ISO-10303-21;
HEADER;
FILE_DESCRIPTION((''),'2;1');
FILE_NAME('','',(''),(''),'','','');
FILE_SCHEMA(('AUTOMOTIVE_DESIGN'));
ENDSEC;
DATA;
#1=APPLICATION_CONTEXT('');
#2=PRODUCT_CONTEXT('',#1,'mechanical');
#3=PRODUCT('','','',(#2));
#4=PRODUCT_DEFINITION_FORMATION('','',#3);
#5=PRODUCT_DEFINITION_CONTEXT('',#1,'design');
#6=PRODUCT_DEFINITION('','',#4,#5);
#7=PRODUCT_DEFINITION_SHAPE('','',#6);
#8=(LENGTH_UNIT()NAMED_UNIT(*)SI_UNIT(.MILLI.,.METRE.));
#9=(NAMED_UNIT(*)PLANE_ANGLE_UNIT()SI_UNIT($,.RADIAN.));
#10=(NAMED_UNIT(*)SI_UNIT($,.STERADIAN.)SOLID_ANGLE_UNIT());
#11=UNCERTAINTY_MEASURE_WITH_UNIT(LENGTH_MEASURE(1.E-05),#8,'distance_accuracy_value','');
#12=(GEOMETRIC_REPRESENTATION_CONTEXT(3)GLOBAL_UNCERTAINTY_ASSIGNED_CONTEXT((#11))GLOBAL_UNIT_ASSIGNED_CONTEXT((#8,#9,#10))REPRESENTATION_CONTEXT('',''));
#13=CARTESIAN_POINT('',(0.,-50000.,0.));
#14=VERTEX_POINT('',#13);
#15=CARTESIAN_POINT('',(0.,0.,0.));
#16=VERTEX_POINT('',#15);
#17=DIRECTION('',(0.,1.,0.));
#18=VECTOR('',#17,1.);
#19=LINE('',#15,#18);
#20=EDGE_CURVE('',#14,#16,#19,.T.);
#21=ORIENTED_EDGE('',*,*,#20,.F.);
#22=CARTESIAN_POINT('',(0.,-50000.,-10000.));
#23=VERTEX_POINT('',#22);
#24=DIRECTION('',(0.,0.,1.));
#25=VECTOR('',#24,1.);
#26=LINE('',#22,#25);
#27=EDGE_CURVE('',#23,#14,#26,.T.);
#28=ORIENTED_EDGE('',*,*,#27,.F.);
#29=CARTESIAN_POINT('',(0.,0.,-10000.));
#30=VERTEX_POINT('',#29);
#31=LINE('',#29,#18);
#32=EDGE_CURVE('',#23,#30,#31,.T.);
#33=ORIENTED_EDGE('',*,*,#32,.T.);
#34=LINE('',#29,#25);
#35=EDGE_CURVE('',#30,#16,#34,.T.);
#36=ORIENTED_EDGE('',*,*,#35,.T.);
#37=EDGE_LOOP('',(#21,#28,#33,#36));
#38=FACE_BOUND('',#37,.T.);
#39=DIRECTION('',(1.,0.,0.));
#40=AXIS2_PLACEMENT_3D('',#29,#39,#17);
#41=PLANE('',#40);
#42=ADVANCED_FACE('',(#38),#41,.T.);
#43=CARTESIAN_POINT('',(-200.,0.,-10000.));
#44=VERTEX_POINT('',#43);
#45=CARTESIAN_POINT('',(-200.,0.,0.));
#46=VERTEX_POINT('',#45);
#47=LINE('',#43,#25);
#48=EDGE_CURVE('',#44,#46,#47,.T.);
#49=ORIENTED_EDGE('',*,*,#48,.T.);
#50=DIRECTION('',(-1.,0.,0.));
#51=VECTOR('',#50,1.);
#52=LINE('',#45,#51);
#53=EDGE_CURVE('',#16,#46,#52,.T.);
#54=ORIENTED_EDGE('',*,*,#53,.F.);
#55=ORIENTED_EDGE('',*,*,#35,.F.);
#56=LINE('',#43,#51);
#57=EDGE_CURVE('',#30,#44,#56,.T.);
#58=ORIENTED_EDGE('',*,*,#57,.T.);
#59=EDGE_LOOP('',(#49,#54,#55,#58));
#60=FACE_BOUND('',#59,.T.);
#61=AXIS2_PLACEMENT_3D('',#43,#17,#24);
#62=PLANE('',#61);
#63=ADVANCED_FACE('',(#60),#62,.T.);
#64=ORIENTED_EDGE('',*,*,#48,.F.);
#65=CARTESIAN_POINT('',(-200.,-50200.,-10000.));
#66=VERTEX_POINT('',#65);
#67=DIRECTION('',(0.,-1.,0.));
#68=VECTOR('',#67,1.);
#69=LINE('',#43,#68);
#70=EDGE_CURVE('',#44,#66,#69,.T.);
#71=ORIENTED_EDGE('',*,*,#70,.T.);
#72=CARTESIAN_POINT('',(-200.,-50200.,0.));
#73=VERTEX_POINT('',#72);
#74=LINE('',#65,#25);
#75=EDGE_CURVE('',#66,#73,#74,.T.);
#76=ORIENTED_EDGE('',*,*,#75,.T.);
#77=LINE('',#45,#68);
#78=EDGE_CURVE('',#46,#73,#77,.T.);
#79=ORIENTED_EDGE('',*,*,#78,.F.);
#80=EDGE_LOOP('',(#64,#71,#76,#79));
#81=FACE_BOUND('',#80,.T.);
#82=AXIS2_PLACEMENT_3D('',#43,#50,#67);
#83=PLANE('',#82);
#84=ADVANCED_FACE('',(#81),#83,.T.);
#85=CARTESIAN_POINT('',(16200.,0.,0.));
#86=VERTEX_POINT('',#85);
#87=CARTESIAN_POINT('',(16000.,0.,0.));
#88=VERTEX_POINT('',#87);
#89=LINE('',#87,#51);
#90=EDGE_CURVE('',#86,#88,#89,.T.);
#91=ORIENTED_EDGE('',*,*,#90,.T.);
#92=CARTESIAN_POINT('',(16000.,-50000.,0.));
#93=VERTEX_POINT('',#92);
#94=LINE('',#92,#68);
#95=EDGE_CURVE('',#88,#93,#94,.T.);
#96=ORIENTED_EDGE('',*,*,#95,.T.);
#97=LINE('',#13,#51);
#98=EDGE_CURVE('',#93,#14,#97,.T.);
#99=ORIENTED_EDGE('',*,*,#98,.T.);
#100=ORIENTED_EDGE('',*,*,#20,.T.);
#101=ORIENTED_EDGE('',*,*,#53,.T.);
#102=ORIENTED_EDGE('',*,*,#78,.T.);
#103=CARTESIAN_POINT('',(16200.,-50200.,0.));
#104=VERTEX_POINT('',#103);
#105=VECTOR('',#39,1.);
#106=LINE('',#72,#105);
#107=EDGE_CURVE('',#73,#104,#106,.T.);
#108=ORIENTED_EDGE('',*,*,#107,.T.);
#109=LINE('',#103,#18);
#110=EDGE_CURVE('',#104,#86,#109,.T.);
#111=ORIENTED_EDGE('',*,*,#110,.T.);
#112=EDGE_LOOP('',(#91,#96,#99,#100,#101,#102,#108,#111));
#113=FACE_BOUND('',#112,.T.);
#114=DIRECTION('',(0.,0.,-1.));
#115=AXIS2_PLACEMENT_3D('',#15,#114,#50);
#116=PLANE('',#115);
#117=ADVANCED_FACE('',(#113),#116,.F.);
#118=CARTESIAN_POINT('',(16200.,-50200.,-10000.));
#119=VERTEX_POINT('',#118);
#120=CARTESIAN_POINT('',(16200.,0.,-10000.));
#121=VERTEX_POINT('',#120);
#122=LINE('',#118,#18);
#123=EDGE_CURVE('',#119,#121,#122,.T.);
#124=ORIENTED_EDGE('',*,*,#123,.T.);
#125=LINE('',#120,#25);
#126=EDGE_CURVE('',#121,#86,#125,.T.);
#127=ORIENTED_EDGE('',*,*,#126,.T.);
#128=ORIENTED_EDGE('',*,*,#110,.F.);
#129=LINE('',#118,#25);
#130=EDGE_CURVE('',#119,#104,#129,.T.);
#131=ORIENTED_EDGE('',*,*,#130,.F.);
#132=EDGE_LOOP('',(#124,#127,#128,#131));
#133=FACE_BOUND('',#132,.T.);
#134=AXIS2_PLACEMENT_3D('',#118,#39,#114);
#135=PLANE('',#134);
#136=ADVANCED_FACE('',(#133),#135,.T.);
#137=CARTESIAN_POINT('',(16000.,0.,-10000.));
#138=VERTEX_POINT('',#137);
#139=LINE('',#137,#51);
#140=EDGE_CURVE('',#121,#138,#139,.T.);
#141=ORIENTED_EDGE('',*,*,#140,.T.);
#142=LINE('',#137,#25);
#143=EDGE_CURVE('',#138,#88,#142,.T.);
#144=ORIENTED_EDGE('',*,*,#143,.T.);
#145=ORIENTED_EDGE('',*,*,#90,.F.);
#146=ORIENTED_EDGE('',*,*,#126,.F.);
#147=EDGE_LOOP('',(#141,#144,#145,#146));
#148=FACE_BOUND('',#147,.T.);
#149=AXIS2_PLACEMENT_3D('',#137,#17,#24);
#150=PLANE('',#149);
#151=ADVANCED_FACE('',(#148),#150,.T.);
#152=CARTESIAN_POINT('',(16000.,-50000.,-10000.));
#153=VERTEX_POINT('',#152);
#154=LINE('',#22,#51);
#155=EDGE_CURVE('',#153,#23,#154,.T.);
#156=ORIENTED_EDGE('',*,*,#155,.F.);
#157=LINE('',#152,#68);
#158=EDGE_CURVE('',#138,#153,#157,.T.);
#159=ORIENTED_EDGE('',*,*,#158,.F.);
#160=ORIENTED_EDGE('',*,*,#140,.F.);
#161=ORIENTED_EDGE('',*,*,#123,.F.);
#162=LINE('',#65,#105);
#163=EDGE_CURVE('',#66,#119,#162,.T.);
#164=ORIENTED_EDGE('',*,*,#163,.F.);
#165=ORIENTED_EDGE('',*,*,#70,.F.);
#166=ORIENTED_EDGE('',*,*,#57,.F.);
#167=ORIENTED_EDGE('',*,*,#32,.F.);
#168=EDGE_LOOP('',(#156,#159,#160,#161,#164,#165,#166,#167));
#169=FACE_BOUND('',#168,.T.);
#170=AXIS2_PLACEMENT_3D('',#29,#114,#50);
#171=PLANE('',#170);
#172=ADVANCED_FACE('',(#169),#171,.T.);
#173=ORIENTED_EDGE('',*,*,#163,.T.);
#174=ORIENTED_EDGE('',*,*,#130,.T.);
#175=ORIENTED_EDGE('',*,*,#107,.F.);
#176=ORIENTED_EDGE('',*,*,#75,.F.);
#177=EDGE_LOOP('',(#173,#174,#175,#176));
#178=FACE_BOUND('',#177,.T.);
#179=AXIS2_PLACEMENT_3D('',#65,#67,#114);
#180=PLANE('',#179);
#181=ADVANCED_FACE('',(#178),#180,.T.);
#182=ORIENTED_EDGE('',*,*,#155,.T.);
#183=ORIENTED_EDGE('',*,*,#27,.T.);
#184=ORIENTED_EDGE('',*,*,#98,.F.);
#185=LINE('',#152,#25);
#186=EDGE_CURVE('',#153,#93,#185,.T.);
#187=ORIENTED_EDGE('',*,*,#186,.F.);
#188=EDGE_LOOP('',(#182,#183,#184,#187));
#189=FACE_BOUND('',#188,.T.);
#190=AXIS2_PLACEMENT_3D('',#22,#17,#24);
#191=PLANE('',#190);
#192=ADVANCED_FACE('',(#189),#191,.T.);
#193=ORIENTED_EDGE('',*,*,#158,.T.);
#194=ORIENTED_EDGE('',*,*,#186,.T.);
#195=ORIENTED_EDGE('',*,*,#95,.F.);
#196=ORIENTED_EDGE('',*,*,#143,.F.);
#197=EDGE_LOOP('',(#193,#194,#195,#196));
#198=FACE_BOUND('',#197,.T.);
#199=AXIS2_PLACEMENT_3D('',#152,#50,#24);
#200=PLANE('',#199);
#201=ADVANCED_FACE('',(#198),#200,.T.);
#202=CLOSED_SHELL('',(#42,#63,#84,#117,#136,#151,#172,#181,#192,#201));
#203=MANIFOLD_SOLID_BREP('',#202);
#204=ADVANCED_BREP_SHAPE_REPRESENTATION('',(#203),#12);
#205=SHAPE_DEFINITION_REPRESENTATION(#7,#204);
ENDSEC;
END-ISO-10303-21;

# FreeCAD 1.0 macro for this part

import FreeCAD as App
import Part
import Sketcher

V = App.Vector
Q = App.Units.Quantity


def add_polygon(sketch, points):
    """Adds a closed chain of lines whose ends are joined by coincident constraints."""
    first, n = sketch.GeometryCount, len(points)
    for a, b in zip(points, points[1:] + points[:1]):
        sketch.addGeometry(Part.LineSegment(App.Vector(*a, 0), App.Vector(*b, 0)), False)
    for i in range(n):
        sketch.addConstraint(Sketcher.Constraint("Coincident", first + i, 2, first + (i + 1) % n, 1))

doc = App.newDocument("Part")
body = doc.addObject("PartDesign::Body", "Body")

# Sketch on XY plane
sketch1 = doc.addObject("Sketcher::SketchObject", "Sketch")
body.addObject(sketch1)
sketch1.AttachmentSupport = (doc.XY_Plane, [""])
sketch1.MapMode = "FlatFace"
add_polygon(sketch1, [(0, -50000), (0, 0), (-200, 0), (-200, -50200), (16200, -50200), (16200, 0), (16000, 0), (16000, -50000)])  # lines 0-7
sketch1.addConstraint([
    Sketcher.Constraint("Vertical", 0),
    Sketcher.Constraint("Horizontal", 1),
    Sketcher.Constraint("Vertical", 2),
    Sketcher.Constraint("Horizontal", 3),
    Sketcher.Constraint("Vertical", 4),
    Sketcher.Constraint("Horizontal", 5),
    Sketcher.Constraint("Vertical", 6),
    Sketcher.Constraint("Horizontal", 7),
    Sketcher.Constraint("Coincident", 0, 2, -1, 1),
    Sketcher.Constraint("PointOnObject", 4, 2, -1),
    Sketcher.Constraint("Equal", 1, 5),
    Sketcher.Constraint("DistanceX", 1, 2, 1, 1, Q("200 mm")),
    Sketcher.Constraint("DistanceX", 3, 1, 3, 2, Q("16400 mm")),
    Sketcher.Constraint("DistanceY", 0, 1, 0, 2, Q("50000 mm")),
    Sketcher.Constraint("DistanceY", 2, 2, 2, 1, Q("50200 mm")),
])
pad1 = doc.addObject("PartDesign::Pad", "Pad")
body.addObject(pad1)
pad1.Profile = sketch1
pad1.Length = 10000
pad1.Reversed = True

doc.recompute()
